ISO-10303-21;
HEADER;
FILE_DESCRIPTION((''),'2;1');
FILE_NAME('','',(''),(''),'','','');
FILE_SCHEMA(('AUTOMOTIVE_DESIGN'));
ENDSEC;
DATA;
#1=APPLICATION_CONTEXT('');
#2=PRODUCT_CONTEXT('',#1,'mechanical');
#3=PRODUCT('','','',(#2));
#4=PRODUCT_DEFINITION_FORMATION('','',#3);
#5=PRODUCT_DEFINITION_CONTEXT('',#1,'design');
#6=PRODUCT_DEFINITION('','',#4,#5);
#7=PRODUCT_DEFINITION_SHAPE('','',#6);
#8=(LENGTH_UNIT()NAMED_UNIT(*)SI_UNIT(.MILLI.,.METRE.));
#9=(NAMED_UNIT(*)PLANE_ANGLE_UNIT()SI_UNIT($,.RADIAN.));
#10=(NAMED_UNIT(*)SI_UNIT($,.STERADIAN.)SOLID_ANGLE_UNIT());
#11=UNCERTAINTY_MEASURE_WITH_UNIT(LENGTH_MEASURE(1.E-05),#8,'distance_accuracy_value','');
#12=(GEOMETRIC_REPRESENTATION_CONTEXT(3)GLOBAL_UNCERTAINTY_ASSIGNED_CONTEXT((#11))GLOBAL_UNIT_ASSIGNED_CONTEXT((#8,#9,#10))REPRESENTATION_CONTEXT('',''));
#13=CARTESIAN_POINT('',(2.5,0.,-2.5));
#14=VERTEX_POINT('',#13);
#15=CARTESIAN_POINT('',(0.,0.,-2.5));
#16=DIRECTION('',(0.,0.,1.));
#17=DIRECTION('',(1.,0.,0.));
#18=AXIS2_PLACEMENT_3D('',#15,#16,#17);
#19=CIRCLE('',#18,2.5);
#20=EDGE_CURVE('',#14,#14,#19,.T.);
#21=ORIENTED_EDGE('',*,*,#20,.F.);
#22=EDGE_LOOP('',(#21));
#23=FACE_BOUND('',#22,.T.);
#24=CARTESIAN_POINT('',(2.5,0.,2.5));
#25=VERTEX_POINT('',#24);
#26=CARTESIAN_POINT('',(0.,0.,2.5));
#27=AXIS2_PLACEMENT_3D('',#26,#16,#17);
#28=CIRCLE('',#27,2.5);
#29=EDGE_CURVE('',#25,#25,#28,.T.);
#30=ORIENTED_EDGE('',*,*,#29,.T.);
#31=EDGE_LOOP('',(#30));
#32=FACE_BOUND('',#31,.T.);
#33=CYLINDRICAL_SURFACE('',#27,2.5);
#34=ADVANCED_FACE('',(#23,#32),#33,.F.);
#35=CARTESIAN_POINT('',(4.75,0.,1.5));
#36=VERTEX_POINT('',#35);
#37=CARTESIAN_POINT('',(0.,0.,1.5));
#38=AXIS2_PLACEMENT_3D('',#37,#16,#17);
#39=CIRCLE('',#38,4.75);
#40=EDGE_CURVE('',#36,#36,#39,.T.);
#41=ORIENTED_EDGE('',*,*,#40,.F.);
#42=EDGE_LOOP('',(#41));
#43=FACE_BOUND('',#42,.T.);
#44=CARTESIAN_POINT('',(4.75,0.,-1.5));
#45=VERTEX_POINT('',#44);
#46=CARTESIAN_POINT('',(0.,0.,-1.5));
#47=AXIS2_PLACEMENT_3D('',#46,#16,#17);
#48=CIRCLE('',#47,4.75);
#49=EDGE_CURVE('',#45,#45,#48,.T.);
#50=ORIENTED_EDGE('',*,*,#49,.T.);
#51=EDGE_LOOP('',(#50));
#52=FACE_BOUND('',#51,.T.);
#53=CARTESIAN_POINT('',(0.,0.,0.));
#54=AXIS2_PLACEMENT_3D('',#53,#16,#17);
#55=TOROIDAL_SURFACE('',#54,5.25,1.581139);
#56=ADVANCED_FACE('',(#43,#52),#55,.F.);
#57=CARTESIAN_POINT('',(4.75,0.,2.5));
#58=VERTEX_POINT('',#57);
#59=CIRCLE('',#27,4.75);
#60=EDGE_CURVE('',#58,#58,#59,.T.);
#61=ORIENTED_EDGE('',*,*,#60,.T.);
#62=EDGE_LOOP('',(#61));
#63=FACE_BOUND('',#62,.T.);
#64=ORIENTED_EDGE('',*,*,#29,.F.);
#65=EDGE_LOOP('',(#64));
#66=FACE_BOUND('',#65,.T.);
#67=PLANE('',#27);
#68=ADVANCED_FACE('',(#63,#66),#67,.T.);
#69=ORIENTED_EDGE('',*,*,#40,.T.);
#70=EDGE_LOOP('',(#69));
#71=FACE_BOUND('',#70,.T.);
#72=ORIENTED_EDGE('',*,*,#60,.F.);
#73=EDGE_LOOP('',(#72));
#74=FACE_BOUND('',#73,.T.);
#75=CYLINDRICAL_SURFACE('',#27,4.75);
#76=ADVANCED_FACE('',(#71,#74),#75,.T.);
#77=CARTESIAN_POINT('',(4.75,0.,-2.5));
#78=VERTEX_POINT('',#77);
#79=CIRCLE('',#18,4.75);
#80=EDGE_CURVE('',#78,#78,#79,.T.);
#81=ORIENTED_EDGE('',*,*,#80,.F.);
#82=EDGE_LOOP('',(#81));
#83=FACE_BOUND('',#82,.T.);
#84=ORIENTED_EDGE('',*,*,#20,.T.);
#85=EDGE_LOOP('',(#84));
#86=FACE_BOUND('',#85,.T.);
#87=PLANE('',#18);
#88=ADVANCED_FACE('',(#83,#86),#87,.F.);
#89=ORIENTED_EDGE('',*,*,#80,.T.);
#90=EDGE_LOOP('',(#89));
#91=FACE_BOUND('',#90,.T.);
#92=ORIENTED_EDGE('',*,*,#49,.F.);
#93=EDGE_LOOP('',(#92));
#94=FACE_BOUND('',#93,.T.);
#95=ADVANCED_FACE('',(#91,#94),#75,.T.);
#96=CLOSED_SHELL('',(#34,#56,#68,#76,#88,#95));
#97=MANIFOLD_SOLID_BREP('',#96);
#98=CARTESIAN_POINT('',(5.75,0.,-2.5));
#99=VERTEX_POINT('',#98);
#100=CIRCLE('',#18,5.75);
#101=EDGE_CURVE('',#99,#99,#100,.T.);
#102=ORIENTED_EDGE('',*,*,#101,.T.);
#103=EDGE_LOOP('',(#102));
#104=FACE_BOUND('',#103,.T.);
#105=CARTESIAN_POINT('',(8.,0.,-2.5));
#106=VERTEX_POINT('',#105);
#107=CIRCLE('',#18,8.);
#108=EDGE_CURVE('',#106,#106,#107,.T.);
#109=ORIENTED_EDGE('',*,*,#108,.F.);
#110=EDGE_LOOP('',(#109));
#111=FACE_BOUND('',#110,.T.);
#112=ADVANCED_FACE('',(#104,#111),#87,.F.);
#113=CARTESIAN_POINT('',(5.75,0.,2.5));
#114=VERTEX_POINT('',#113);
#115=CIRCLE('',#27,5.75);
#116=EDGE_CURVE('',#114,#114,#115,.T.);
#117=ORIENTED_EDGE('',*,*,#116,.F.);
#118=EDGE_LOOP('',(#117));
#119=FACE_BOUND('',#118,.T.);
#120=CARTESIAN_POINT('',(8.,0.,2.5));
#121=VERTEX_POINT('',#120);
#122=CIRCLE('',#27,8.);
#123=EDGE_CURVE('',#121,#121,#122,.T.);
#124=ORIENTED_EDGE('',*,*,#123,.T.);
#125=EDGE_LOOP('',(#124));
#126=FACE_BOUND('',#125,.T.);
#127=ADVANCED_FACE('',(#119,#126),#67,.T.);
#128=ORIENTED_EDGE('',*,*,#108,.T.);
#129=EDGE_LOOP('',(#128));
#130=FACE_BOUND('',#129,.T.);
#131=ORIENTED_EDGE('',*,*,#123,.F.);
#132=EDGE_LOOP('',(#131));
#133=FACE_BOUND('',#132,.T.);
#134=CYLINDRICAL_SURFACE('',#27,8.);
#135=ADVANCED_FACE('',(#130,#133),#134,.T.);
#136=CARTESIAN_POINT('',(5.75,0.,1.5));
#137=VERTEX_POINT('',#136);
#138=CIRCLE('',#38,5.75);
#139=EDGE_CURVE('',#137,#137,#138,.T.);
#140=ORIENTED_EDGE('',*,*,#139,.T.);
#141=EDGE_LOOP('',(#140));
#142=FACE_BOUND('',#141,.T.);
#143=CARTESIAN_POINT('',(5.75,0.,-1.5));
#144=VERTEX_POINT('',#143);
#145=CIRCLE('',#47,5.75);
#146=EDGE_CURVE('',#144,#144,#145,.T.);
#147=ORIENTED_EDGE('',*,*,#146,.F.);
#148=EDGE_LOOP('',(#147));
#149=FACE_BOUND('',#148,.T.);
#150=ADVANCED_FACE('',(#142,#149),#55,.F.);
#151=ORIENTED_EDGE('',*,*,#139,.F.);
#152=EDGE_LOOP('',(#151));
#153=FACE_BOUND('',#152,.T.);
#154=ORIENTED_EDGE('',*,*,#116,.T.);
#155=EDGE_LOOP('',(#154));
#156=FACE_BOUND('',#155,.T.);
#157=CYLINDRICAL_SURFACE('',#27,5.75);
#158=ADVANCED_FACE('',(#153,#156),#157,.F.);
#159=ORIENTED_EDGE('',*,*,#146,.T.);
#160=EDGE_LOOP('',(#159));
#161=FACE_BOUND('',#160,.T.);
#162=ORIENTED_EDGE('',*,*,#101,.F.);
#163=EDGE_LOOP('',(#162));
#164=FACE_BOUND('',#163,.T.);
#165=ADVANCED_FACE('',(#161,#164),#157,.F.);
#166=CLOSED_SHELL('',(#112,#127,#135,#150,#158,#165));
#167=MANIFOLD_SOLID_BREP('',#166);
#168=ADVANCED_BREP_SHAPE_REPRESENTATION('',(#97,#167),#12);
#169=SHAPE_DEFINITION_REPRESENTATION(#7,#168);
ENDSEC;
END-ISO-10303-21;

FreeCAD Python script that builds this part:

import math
import FreeCAD as App
import Part
import Sketcher

V = App.Vector

doc = App.newDocument("Part")
body = doc.addObject("PartDesign::Body", "Body")
body.AllowCompound = True

sketch1 = doc.addObject("Sketcher::SketchObject", "Sketch")
body.addObject(sketch1)
sketch1.AttachmentSupport = (doc.YZ_Plane, [""])
sketch1.MapMode = "FlatFace"
sketch1.addGeometry(Part.ArcOfCircle(Part.Circle(V(5.2, 0, 0), V(0, 0, 1), 1.6), math.radians(108), math.radians(252)), False)
sketch1.addGeometry(Part.LineSegment(V(4.8, 1.5, 0), V(4.8, 2.5, 0)), False)
sketch1.addGeometry(Part.LineSegment(V(4.8, 2.5, 0), V(2.5, 2.5, 0)), False)
sketch1.addGeometry(Part.LineSegment(V(2.5, 2.5, 0), V(2.5, -2.5, 0)), False)
sketch1.addGeometry(Part.LineSegment(V(2.5, -2.5, 0), V(4.8, -2.5, 0)), False)
sketch1.addGeometry(Part.LineSegment(V(4.8, -2.5, 0), V(4.8, -1.5, 0)), False)
sketch1.addGeometry(Part.LineSegment(V(5.8, 2.5, 0), V(5.8, 1.5, 0)), False)
sketch1.addGeometry(Part.ArcOfCircle(Part.Circle(V(5.2, 0, 0), V(0, 0, 1), 1.6), math.radians(-72), math.radians(72)), False)
sketch1.addGeometry(Part.LineSegment(V(5.8, -1.5, 0), V(5.8, -2.5, 0)), False)
sketch1.addGeometry(Part.LineSegment(V(5.8, -2.5, 0), V(8, -2.5, 0)), False)
sketch1.addGeometry(Part.LineSegment(V(8, -2.5, 0), V(8, 2.5, 0)), False)
sketch1.addGeometry(Part.LineSegment(V(8, 2.5, 0), V(5.8, 2.5, 0)), False)
sketch1.addConstraint(Sketcher.Constraint("Coincident", 0, 1, 1, 1))
sketch1.addConstraint(Sketcher.Constraint("Coincident", 1, 2, 2, 1))
sketch1.addConstraint(Sketcher.Constraint("Coincident", 2, 2, 3, 1))
sketch1.addConstraint(Sketcher.Constraint("Coincident", 3, 2, 4, 1))
sketch1.addConstraint(Sketcher.Constraint("Coincident", 4, 2, 5, 1))
sketch1.addConstraint(Sketcher.Constraint("Coincident", 5, 2, 0, 2))
sketch1.addConstraint(Sketcher.Constraint("Coincident", 6, 2, 7, 2))
sketch1.addConstraint(Sketcher.Constraint("Coincident", 7, 1, 8, 1))
sketch1.addConstraint(Sketcher.Constraint("Coincident", 8, 2, 9, 1))
sketch1.addConstraint(Sketcher.Constraint("Coincident", 9, 2, 10, 1))
sketch1.addConstraint(Sketcher.Constraint("Coincident", 10, 2, 11, 1))
sketch1.addConstraint(Sketcher.Constraint("Coincident", 11, 2, 6, 1))
sketch1.addConstraint(Sketcher.Constraint("Vertical", 1))
sketch1.addConstraint(Sketcher.Constraint("Horizontal", 2))
sketch1.addConstraint(Sketcher.Constraint("Vertical", 3))
sketch1.addConstraint(Sketcher.Constraint("Horizontal", 4))
sketch1.addConstraint(Sketcher.Constraint("Vertical", 5))
sketch1.addConstraint(Sketcher.Constraint("Vertical", 6))
sketch1.addConstraint(Sketcher.Constraint("Vertical", 8))
sketch1.addConstraint(Sketcher.Constraint("Horizontal", 9))
sketch1.addConstraint(Sketcher.Constraint("Vertical", 10))
sketch1.addConstraint(Sketcher.Constraint("Horizontal", 11))
sketch1.addConstraint(Sketcher.Constraint("Coincident", 7, 3, 0, 3))
sketch1.addConstraint(Sketcher.Constraint("Equal", 0, 7))
sketch1.addConstraint(Sketcher.Constraint("Symmetric", 1, 2, 4, 2, -1))
sketch1.addConstraint(Sketcher.Constraint("Symmetric", 6, 2, 7, 1, -1))
sketch1.addConstraint(Sketcher.Constraint("Horizontal", 0, 1, 6, 2))
sketch1.addConstraint(Sketcher.Constraint("Horizontal", 4, 2, 8, 2))
sketch1.addConstraint(Sketcher.Constraint("Horizontal", 2, 2, 10, 2))
sketch1.addConstraint(Sketcher.Constraint("Equal", 4, 9))
sketch1.addConstraint(Sketcher.Constraint("DistanceY", 1, 1, 1, 2, 1.0))
sketch1.addConstraint(Sketcher.Constraint("DistanceY", 3, 2, 3, 1, 5.0))
sketch1.addConstraint(Sketcher.Constraint("DistanceX", -1, 1, 9, 2, 8.0))
sketch1.addConstraint(Sketcher.Constraint("DistanceX", 0, 1, 6, 2, 1.0))
sketch1.addConstraint(Sketcher.Constraint("DistanceX", 2, 2, 2, 1, 2.25))
revolution = doc.addObject("PartDesign::Revolution", "Revolution")
body.addObject(revolution)
revolution.Profile = sketch1
revolution.ReferenceAxis = (sketch1, ["V_Axis"])
revolution.Angle = 360

doc.recompute()
